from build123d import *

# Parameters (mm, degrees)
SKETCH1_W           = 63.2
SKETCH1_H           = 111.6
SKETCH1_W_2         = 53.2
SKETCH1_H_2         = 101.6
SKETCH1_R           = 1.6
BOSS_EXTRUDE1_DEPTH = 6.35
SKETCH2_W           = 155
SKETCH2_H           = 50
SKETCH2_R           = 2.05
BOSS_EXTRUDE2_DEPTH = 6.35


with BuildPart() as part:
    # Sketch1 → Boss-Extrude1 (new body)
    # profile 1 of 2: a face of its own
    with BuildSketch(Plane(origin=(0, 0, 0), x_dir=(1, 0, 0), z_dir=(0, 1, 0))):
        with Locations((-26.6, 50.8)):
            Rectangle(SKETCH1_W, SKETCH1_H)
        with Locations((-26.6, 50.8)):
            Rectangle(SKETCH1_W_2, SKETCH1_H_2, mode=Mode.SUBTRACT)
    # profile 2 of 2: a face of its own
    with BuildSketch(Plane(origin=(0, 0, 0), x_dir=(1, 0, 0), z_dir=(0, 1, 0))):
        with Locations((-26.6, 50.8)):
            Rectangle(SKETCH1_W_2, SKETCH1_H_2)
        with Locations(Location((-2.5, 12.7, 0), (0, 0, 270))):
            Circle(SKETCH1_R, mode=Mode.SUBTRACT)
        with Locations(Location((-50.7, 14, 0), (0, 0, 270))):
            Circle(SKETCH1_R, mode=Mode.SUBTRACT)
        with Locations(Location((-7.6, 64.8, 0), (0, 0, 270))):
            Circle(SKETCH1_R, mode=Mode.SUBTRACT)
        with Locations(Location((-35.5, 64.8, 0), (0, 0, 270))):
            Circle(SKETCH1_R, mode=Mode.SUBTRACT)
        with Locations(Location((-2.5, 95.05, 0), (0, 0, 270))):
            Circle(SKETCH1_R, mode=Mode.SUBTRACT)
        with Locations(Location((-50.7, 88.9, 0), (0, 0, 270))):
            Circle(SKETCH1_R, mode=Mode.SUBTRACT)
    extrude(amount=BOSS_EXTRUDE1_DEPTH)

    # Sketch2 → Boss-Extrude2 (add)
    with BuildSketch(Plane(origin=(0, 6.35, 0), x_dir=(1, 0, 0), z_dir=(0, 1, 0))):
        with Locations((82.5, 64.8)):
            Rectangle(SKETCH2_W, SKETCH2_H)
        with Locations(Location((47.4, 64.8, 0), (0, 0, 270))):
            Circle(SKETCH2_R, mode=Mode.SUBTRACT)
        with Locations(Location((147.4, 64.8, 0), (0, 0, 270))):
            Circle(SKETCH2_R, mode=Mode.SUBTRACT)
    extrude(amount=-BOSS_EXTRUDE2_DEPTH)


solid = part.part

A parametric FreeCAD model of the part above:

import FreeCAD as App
import Part
import Sketcher
Q = App.Units.Quantity


def add_polygon(sketch, points):
    """Adds a closed chain of lines whose ends are joined by coincident constraints."""
    first, n = sketch.GeometryCount, len(points)
    for a, b in zip(points, points[1:] + points[:1]):
        sketch.addGeometry(Part.LineSegment(App.Vector(*a, 0), App.Vector(*b, 0)), False)
    for i in range(n):
        sketch.addConstraint(Sketcher.Constraint("Coincident", first + i, 2, first + (i + 1) % n, 1))

doc = App.newDocument("Part")
body = doc.addObject("PartDesign::Body", "Body")

sketch1 = body.newObject("Sketcher::SketchObject", "Sketch")
sketch1.AttachmentSupport = (doc.getObject("XZ_Plane"), [""])
sketch1.MapMode = "FlatFace"
add_polygon(sketch1, [(-58.2, -106.6), (-58.2, 5), (5, 5), (5, -106.6)])
sketch1.addGeometry(Part.Circle(App.Vector(-35.5, -64.8, 0), App.Vector(0, 0, 1), 1.6), False)
sketch1.addGeometry(Part.Circle(App.Vector(-2.5, -95.05, 0), App.Vector(0, 0, 1), 1.6), False)
sketch1.addGeometry(Part.Circle(App.Vector(-50.7, -88.9, 0), App.Vector(0, 0, 1), 1.6), False)
sketch1.addGeometry(Part.Circle(App.Vector(-7.6, -64.8, 0), App.Vector(0, 0, 1), 1.6), False)
sketch1.addGeometry(Part.Circle(App.Vector(-50.7, -14, 0), App.Vector(0, 0, 1), 1.6), False)
sketch1.addGeometry(Part.Circle(App.Vector(-2.5, -12.7, 0), App.Vector(0, 0, 1), 1.6), False)
sketch1.addConstraint(Sketcher.Constraint("Vertical", 0))
sketch1.addConstraint(Sketcher.Constraint("Horizontal", 1))
sketch1.addConstraint(Sketcher.Constraint("Vertical", 2))
sketch1.addConstraint(Sketcher.Constraint("Horizontal", 3))
sketch1.addConstraint(Sketcher.Constraint("Equal", 4, 5))
sketch1.addConstraint(Sketcher.Constraint("Equal", 5, 6))
sketch1.addConstraint(Sketcher.Constraint("Equal", 6, 7))
sketch1.addConstraint(Sketcher.Constraint("Equal", 7, 8))
sketch1.addConstraint(Sketcher.Constraint("Equal", 8, 9))
sketch1.addConstraint(Sketcher.Constraint("Horizontal", 4, 3, 7, 3))
sketch1.addConstraint(Sketcher.Constraint("Vertical", 6, 3, 8, 3))
sketch1.addConstraint(Sketcher.Constraint("Vertical", 5, 3, 9, 3))
sketch1.addConstraint(Sketcher.Constraint("Diameter", 4, Q("3.2 mm")))
sketch1.addConstraint(Sketcher.Constraint("DistanceX", 1, 1, 1, 2, Q("63.2 mm")))
sketch1.addConstraint(Sketcher.Constraint("DistanceY", 0, 1, 0, 2, Q("111.6 mm")))
sketch1.addConstraint(Sketcher.Constraint("DistanceY", 8, 3, -1, 1, Q("14 mm")))
sketch1.addConstraint(Sketcher.Constraint("DistanceY", -1, 1, 0, 2, Q("5 mm")))
sketch1.addConstraint(Sketcher.Constraint("DistanceX", -1, 1, 1, 2, Q("5 mm")))
sketch1.addConstraint(Sketcher.Constraint("DistanceX", 4, 3, 5, 3, Q("33 mm")))
sketch1.addConstraint(Sketcher.Constraint("DistanceX", 4, 3, -1, 1, Q("35.5 mm")))
sketch1.addConstraint(Sketcher.Constraint("DistanceY", 4, 3, -1, 1, Q("64.8 mm")))
sketch1.addConstraint(Sketcher.Constraint("DistanceX", 6, 3, -1, 1, Q("50.7 mm")))
sketch1.addConstraint(Sketcher.Constraint("DistanceY", 6, 3, -1, 1, Q("88.9 mm")))
sketch1.addConstraint(Sketcher.Constraint("DistanceX", 7, 3, -1, 1, Q("7.6 mm")))
sketch1.addConstraint(Sketcher.Constraint("DistanceY", 9, 3, -1, 1, Q("12.7 mm")))
sketch1.addConstraint(Sketcher.Constraint("DistanceY", 5, 3, -1, 1, Q("95.05 mm")))
pad1 = body.newObject("PartDesign::Pad", "Pad")
pad1.Profile = sketch1
pad1.Length = 6.35
pad1.Reversed = True

sketch2 = body.newObject("Sketcher::SketchObject", "Sketch001")
sketch2.AttachmentSupport = (doc.getObject("XZ_Plane"), [""])
sketch2.MapMode = "FlatFace"
sketch2.AttachmentOffset = App.Placement(App.Vector(0, 0, -6.35), App.Rotation())
add_polygon(sketch2, [(5, -89.8), (5, -39.8), (160, -39.8), (160, -89.8)])
sketch2.addGeometry(Part.Circle(App.Vector(47.4, -64.8, 0), App.Vector(0, 0, 1), 2.05), False)
sketch2.addGeometry(Part.Circle(App.Vector(147.4, -64.8, 0), App.Vector(0, 0, 1), 2.05), False)
sketch2.addConstraint(Sketcher.Constraint("Vertical", 0))
sketch2.addConstraint(Sketcher.Constraint("Horizontal", 1))
sketch2.addConstraint(Sketcher.Constraint("Vertical", 2))
sketch2.addConstraint(Sketcher.Constraint("Horizontal", 3))
sketch2.addConstraint(Sketcher.Constraint("Equal", 4, 5))
sketch2.addConstraint(Sketcher.Constraint("Horizontal", 4, 3, 5, 3))
sketch2.addConstraint(Sketcher.Constraint("Diameter", 4, Q("4.1 mm")))
sketch2.addConstraint(Sketcher.Constraint("DistanceX", 1, 1, 1, 2, Q("155 mm")))
sketch2.addConstraint(Sketcher.Constraint("DistanceY", 0, 1, 0, 2, Q("50 mm")))
sketch2.addConstraint(Sketcher.Constraint("DistanceX", -1, 1, 0, 2, Q("5 mm")))
sketch2.addConstraint(Sketcher.Constraint("DistanceX", 4, 3, 5, 3, Q("100 mm")))
sketch2.addConstraint(Sketcher.Constraint("DistanceY", 4, 3, 0, 2, Q("25 mm")))
sketch2.addConstraint(Sketcher.Constraint("DistanceX", -1, 1, 4, 3, Q("47.4 mm")))
sketch2.addConstraint(Sketcher.Constraint("DistanceY", 4, 3, -1, 1, Q("64.8 mm")))
pad2 = body.newObject("PartDesign::Pad", "Pad001")
pad2.Profile = sketch2
pad2.Length = 6.35

doc.recompute()
